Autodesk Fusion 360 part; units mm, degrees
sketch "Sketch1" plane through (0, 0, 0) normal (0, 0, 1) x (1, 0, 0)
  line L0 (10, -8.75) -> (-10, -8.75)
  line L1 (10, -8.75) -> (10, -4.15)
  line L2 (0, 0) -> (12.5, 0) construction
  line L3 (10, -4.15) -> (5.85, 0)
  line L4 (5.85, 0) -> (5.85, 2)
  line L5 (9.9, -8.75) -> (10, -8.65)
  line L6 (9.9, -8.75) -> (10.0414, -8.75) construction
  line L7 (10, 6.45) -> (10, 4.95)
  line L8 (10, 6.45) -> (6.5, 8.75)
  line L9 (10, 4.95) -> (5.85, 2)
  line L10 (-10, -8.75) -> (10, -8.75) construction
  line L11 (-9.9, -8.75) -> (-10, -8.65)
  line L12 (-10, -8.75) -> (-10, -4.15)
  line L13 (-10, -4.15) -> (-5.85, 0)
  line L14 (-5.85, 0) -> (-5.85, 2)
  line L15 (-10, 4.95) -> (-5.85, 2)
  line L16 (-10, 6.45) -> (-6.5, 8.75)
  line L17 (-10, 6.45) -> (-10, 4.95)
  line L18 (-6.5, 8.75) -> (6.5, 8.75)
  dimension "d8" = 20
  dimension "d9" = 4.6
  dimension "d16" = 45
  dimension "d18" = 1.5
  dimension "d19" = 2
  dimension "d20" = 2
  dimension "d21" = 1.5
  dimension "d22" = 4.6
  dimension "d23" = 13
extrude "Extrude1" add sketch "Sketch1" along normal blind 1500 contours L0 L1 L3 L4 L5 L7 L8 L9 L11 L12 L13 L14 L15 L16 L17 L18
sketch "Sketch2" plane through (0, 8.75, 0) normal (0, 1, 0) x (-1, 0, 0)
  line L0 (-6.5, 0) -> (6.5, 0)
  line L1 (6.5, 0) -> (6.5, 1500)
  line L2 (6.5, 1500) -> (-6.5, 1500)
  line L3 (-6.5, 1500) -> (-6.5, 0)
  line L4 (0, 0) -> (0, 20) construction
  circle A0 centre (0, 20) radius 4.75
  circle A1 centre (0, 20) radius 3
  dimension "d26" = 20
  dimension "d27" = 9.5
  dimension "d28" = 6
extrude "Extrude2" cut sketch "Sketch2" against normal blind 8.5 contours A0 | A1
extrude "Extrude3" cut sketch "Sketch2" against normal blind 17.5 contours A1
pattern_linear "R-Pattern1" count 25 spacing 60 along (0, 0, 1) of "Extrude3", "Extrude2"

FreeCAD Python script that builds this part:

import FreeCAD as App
import Part
import Sketcher
from FreeCAD import Vector
Q = App.Units.Quantity


def add_polygon(sketch, points):
    """Adds a closed chain of lines whose ends are joined by coincident constraints."""
    first, n = sketch.GeometryCount, len(points)
    for a, b in zip(points, points[1:] + points[:1]):
        sketch.addGeometry(Part.LineSegment(App.Vector(*a, 0), App.Vector(*b, 0)), False)
    for i in range(n):
        sketch.addConstraint(Sketcher.Constraint("Coincident", first + i, 2, first + (i + 1) % n, 1))

doc = App.newDocument("Part")
body = doc.addObject("PartDesign::Body", "Body")

# Sketch on XY plane
sketch1 = doc.addObject("Sketcher::SketchObject", "Sketch")
body.addObject(sketch1)
sketch1.AttachmentSupport = (doc.XY_Plane, [""])
sketch1.MapMode = "FlatFace"
add_polygon(sketch1, [(-9.9, -8.75), (9.9, -8.75), (10, -8.65), (10, -4.15), (5.85, 0), (5.85, 2), (10, 4.95), (10, 6.45), (6.5, 8.75), (-6.5, 8.75), (-10, 6.45), (-10, 4.95), (-5.85, 2), (-5.85, 0), (-10, -4.15), (-10, -8.65)])  # lines 0-15
sketch1.addConstraint(Sketcher.Constraint("Horizontal", 0))
sketch1.addConstraint(Sketcher.Constraint("Vertical", 2))
sketch1.addConstraint(Sketcher.Constraint("Vertical", 4))
sketch1.addConstraint(Sketcher.Constraint("Vertical", 6))
sketch1.addConstraint(Sketcher.Constraint("Horizontal", 8))
sketch1.addConstraint(Sketcher.Constraint("Vertical", 10))
sketch1.addConstraint(Sketcher.Constraint("Vertical", 12))
sketch1.addConstraint(Sketcher.Constraint("Vertical", 14))
sketch1.addConstraint(Sketcher.Constraint("Symmetric", 3, 2, 12, 2, -1, 1))
sketch1.addConstraint(Sketcher.Constraint("Symmetric", 6, 2, 9, 2, -2))
sketch1.addConstraint(Sketcher.Constraint("Symmetric", 2, 2, 13, 2, -2))
sketch1.addConstraint(Sketcher.Constraint("PointOnObject", 3, 2, -1))
sketch1.addConstraint(Sketcher.Constraint("Perpendicular", 1, 3))
sketch1.addConstraint(Sketcher.Constraint("Perpendicular", 3, 13))
sketch1.addConstraint(Sketcher.Constraint("Perpendicular", 13, 15))
sketch1.addConstraint(Sketcher.Constraint("Horizontal", 5, 2, 10, 2))
sketch1.addConstraint(Sketcher.Constraint("Horizontal", 4, 2, 11, 2))
sketch1.addConstraint(Sketcher.Constraint("Horizontal", 1, 2, 14, 2))
sketch1.addConstraint(Sketcher.Constraint("Vertical", 2, 2, 5, 2))
sketch1.addConstraint(Sketcher.Constraint("Equal", 7, 9))
sketch1.addConstraint(Sketcher.Constraint("DistanceX", 8, 2, 8, 1, Q("13 mm")))
sketch1.addConstraint(Sketcher.Constraint("DistanceY", 4, 1, 4, 2, Q("2 mm")))
sketch1.addConstraint(Sketcher.Constraint("DistanceY", 6, 1, 6, 2, Q("1.5 mm")))
sketch1.addConstraint(Sketcher.Constraint("DistanceX", 9, 2, 6, 2, Q("20 mm")))
sketch1.addConstraint(Sketcher.Constraint("DistanceY", 0, 2, 2, 2, Q("4.6 mm")))
sketch1.addConstraint(Sketcher.Constraint("DistanceX", 0, 1, 0, 2, Q("19.8 mm")))
sketch1.addConstraint(Sketcher.Constraint("Angle", 7, Q("146.6894 deg")))
sketch1.addConstraint(Sketcher.Constraint("DistanceY", 2, 2, 5, 2, Q("9.1 mm")))
sketch1.addConstraint(Sketcher.Constraint("DistanceX", 11, 2, 4, 2, Q("11.7 mm")))
pad1 = doc.addObject("PartDesign::Pad", "Pad")
body.addObject(pad1)
pad1.Profile = sketch1
pad1.Length = 1500

# Sketch on XZ plane
sketch2 = doc.addObject("Sketcher::SketchObject", "Sketch001")
body.addObject(sketch2)
sketch2.AttachmentSupport = (doc.XZ_Plane, [""])
sketch2.MapMode = "FlatFace"
sketch2.AttachmentOffset = App.Placement(Vector(0, 0, -8.75), App.Rotation())
sketch2.addGeometry(Part.Circle(Vector(0, 20, 0), Vector(0, 0, 1), 4.75), False)
sketch2.addConstraint(Sketcher.Constraint("PointOnObject", 0, 3, -2))
sketch2.addConstraint(Sketcher.Constraint("Diameter", 0, Q("9.5 mm")))
sketch2.addConstraint(Sketcher.Constraint("DistanceY", -1, 1, 0, 3, Q("20 mm")))
pocket1 = doc.addObject("PartDesign::Pocket", "Pocket")
body.addObject(pocket1)
pocket1.Profile = sketch2
pocket1.Length = 8.5
pocket1.Reversed = True

# Sketch on XZ plane
sketch3 = doc.addObject("Sketcher::SketchObject", "Sketch002")
body.addObject(sketch3)
sketch3.AttachmentSupport = (doc.XZ_Plane, [""])
sketch3.MapMode = "FlatFace"
sketch3.AttachmentOffset = App.Placement(Vector(0, 0, -8.75), App.Rotation())
sketch3.addGeometry(Part.Circle(Vector(0, 20, 0), Vector(0, 0, 1), 3), False)
sketch3.addConstraint(Sketcher.Constraint("PointOnObject", 0, 3, -2))
sketch3.addConstraint(Sketcher.Constraint("Diameter", 0, Q("6 mm")))
sketch3.addConstraint(Sketcher.Constraint("DistanceY", -1, 1, 0, 3, Q("20 mm")))
pocket2 = doc.addObject("PartDesign::Pocket", "Pocket001")
body.addObject(pocket2)
pocket2.Profile = sketch3
pocket2.Length = 17.5
pocket2.Reversed = True
doc.recompute()

linearpattern = doc.addObject("PartDesign::LinearPattern", "LinearPattern")
body.addObject(linearpattern)
linearpattern.Originals = [pocket2, pocket1]
linearpattern.Direction = (doc.Z_Axis, [""])
linearpattern.Mode = "offset"
linearpattern.Offset = 60
linearpattern.Occurrences = 25
body.Tip = linearpattern

doc.recompute()
